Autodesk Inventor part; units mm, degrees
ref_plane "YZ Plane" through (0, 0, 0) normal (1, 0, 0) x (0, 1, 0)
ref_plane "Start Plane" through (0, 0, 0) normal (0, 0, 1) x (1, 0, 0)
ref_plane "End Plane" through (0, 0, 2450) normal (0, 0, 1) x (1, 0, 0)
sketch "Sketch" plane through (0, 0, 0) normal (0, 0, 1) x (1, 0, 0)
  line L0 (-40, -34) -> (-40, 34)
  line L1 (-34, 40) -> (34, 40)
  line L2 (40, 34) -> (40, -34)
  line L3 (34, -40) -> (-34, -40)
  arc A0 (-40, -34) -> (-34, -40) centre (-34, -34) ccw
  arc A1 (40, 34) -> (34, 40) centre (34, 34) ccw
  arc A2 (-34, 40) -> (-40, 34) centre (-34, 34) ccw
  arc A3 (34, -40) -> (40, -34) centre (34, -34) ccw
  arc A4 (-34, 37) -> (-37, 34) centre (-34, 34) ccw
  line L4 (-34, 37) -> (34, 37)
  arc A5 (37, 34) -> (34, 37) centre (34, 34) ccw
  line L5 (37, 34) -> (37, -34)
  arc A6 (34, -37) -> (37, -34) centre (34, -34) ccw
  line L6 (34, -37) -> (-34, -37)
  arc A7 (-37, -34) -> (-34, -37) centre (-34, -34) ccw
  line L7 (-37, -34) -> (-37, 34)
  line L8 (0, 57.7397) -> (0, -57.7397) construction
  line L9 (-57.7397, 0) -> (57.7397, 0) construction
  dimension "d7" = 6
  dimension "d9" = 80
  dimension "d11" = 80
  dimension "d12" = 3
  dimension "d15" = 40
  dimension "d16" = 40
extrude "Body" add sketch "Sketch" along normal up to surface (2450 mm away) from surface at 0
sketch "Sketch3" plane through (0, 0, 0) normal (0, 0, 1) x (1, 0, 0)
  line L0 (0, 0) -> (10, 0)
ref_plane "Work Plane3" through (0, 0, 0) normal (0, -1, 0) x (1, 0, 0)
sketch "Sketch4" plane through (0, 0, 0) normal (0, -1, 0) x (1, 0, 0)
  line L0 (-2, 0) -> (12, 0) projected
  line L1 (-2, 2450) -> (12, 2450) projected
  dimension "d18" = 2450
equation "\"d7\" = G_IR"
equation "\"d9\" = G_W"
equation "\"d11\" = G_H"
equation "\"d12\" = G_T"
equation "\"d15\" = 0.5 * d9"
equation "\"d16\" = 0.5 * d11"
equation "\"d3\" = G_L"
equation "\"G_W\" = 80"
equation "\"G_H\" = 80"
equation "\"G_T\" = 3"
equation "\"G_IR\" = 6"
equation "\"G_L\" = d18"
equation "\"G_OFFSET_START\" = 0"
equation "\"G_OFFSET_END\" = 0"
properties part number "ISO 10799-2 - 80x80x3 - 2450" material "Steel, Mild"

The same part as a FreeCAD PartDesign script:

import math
import FreeCAD as App
import Part
import Sketcher

doc = App.newDocument("Part")
body = doc.addObject("PartDesign::Body", "Body")

sketch1 = body.newObject("Sketcher::SketchObject", "Sketch")
sketch1.AttachmentSupport = (doc.getObject("XY_Plane"), [""])
sketch1.MapMode = "FlatFace"
sketch1.addGeometry(Part.LineSegment(App.Vector(-40, 34, 0), App.Vector(-40, -34, 0)), False)
sketch1.addGeometry(Part.ArcOfCircle(Part.Circle(App.Vector(-34, -34, 0), App.Vector(0, 0, 1), 6), math.radians(180), math.radians(270)), False)
sketch1.addGeometry(Part.LineSegment(App.Vector(-34, -40, 0), App.Vector(34, -40, 0)), False)
sketch1.addGeometry(Part.ArcOfCircle(Part.Circle(App.Vector(34, -34, 0), App.Vector(0, 0, 1), 6), math.radians(-90), math.radians(0)), False)
sketch1.addGeometry(Part.LineSegment(App.Vector(40, -34, 0), App.Vector(40, 34, 0)), False)
sketch1.addGeometry(Part.ArcOfCircle(Part.Circle(App.Vector(34, 34, 0), App.Vector(0, 0, 1), 6), math.radians(0), math.radians(90)), False)
sketch1.addGeometry(Part.LineSegment(App.Vector(34, 40, 0), App.Vector(-34, 40, 0)), False)
sketch1.addGeometry(Part.ArcOfCircle(Part.Circle(App.Vector(-34, 34, 0), App.Vector(0, 0, 1), 6), math.radians(90), math.radians(180)), False)
sketch1.addGeometry(Part.ArcOfCircle(Part.Circle(App.Vector(-34, 34, 0), App.Vector(0, 0, 1), 3), math.radians(90), math.radians(180)), False)
sketch1.addGeometry(Part.LineSegment(App.Vector(-34, 37, 0), App.Vector(34, 37, 0)), False)
sketch1.addGeometry(Part.ArcOfCircle(Part.Circle(App.Vector(34, 34, 0), App.Vector(0, 0, 1), 3), math.radians(0), math.radians(90)), False)
sketch1.addGeometry(Part.LineSegment(App.Vector(37, 34, 0), App.Vector(37, -34, 0)), False)
sketch1.addGeometry(Part.ArcOfCircle(Part.Circle(App.Vector(34, -34, 0), App.Vector(0, 0, 1), 3), math.radians(-90), math.radians(0)), False)
sketch1.addGeometry(Part.LineSegment(App.Vector(34, -37, 0), App.Vector(-34, -37, 0)), False)
sketch1.addGeometry(Part.ArcOfCircle(Part.Circle(App.Vector(-34, -34, 0), App.Vector(0, 0, 1), 3), math.radians(180), math.radians(270)), False)
sketch1.addGeometry(Part.LineSegment(App.Vector(-37, -34, 0), App.Vector(-37, 34, 0)), False)
sketch1.addConstraint(Sketcher.Constraint("Tangent", 0, 2, 1, 1))
sketch1.addConstraint(Sketcher.Constraint("Tangent", 1, 2, 2, 1))
sketch1.addConstraint(Sketcher.Constraint("Tangent", 2, 2, 3, 1))
sketch1.addConstraint(Sketcher.Constraint("Tangent", 3, 2, 4, 1))
sketch1.addConstraint(Sketcher.Constraint("Tangent", 4, 2, 5, 1))
sketch1.addConstraint(Sketcher.Constraint("Tangent", 5, 2, 6, 1))
sketch1.addConstraint(Sketcher.Constraint("Tangent", 6, 2, 7, 1))
sketch1.addConstraint(Sketcher.Constraint("Tangent", 7, 2, 0, 1))
sketch1.addConstraint(Sketcher.Constraint("Tangent", 8, 1, 9, 1))
sketch1.addConstraint(Sketcher.Constraint("Tangent", 9, 2, 10, 2))
sketch1.addConstraint(Sketcher.Constraint("Tangent", 10, 1, 11, 1))
sketch1.addConstraint(Sketcher.Constraint("Tangent", 11, 2, 12, 2))
sketch1.addConstraint(Sketcher.Constraint("Tangent", 12, 1, 13, 1))
sketch1.addConstraint(Sketcher.Constraint("Tangent", 13, 2, 14, 2))
sketch1.addConstraint(Sketcher.Constraint("Tangent", 14, 1, 15, 1))
sketch1.addConstraint(Sketcher.Constraint("Tangent", 15, 2, 8, 2))
sketch1.addConstraint(Sketcher.Constraint("Vertical", 0))
sketch1.addConstraint(Sketcher.Constraint("Horizontal", 2))
sketch1.addConstraint(Sketcher.Constraint("Vertical", 4))
sketch1.addConstraint(Sketcher.Constraint("Horizontal", 6))
sketch1.addConstraint(Sketcher.Constraint("Horizontal", 9))
sketch1.addConstraint(Sketcher.Constraint("Vertical", 11))
sketch1.addConstraint(Sketcher.Constraint("Horizontal", 13))
sketch1.addConstraint(Sketcher.Constraint("Vertical", 15))
sketch1.addConstraint(Sketcher.Constraint("Coincident", 8, 3, 7, 3))
sketch1.addConstraint(Sketcher.Constraint("Coincident", 10, 3, 5, 3))
sketch1.addConstraint(Sketcher.Constraint("Coincident", 12, 3, 3, 3))
sketch1.addConstraint(Sketcher.Constraint("Equal", 1, 3))
sketch1.addConstraint(Sketcher.Constraint("Equal", 3, 5))
sketch1.addConstraint(Sketcher.Constraint("Equal", 5, 7))
sketch1.addConstraint(Sketcher.Constraint("Equal", 12, 14))
sketch1.addConstraint(Sketcher.Constraint("Symmetric", 1, 3, 5, 3, -1, 1))
sketch1.addConstraint(Sketcher.Constraint("Equal", 13, 0))
sketch1.addConstraint(Sketcher.Constraint("Radius", 1, 6.0))
sketch1.addConstraint(Sketcher.Constraint("Radius", 8, 3.0))
sketch1.addConstraint(Sketcher.Constraint("DistanceX", 0, 2, -1, 1, 40.0))
pad1 = body.newObject("PartDesign::Pad", "Pad")
pad1.Profile = sketch1
pad1.Length = 2450

doc.recompute()
